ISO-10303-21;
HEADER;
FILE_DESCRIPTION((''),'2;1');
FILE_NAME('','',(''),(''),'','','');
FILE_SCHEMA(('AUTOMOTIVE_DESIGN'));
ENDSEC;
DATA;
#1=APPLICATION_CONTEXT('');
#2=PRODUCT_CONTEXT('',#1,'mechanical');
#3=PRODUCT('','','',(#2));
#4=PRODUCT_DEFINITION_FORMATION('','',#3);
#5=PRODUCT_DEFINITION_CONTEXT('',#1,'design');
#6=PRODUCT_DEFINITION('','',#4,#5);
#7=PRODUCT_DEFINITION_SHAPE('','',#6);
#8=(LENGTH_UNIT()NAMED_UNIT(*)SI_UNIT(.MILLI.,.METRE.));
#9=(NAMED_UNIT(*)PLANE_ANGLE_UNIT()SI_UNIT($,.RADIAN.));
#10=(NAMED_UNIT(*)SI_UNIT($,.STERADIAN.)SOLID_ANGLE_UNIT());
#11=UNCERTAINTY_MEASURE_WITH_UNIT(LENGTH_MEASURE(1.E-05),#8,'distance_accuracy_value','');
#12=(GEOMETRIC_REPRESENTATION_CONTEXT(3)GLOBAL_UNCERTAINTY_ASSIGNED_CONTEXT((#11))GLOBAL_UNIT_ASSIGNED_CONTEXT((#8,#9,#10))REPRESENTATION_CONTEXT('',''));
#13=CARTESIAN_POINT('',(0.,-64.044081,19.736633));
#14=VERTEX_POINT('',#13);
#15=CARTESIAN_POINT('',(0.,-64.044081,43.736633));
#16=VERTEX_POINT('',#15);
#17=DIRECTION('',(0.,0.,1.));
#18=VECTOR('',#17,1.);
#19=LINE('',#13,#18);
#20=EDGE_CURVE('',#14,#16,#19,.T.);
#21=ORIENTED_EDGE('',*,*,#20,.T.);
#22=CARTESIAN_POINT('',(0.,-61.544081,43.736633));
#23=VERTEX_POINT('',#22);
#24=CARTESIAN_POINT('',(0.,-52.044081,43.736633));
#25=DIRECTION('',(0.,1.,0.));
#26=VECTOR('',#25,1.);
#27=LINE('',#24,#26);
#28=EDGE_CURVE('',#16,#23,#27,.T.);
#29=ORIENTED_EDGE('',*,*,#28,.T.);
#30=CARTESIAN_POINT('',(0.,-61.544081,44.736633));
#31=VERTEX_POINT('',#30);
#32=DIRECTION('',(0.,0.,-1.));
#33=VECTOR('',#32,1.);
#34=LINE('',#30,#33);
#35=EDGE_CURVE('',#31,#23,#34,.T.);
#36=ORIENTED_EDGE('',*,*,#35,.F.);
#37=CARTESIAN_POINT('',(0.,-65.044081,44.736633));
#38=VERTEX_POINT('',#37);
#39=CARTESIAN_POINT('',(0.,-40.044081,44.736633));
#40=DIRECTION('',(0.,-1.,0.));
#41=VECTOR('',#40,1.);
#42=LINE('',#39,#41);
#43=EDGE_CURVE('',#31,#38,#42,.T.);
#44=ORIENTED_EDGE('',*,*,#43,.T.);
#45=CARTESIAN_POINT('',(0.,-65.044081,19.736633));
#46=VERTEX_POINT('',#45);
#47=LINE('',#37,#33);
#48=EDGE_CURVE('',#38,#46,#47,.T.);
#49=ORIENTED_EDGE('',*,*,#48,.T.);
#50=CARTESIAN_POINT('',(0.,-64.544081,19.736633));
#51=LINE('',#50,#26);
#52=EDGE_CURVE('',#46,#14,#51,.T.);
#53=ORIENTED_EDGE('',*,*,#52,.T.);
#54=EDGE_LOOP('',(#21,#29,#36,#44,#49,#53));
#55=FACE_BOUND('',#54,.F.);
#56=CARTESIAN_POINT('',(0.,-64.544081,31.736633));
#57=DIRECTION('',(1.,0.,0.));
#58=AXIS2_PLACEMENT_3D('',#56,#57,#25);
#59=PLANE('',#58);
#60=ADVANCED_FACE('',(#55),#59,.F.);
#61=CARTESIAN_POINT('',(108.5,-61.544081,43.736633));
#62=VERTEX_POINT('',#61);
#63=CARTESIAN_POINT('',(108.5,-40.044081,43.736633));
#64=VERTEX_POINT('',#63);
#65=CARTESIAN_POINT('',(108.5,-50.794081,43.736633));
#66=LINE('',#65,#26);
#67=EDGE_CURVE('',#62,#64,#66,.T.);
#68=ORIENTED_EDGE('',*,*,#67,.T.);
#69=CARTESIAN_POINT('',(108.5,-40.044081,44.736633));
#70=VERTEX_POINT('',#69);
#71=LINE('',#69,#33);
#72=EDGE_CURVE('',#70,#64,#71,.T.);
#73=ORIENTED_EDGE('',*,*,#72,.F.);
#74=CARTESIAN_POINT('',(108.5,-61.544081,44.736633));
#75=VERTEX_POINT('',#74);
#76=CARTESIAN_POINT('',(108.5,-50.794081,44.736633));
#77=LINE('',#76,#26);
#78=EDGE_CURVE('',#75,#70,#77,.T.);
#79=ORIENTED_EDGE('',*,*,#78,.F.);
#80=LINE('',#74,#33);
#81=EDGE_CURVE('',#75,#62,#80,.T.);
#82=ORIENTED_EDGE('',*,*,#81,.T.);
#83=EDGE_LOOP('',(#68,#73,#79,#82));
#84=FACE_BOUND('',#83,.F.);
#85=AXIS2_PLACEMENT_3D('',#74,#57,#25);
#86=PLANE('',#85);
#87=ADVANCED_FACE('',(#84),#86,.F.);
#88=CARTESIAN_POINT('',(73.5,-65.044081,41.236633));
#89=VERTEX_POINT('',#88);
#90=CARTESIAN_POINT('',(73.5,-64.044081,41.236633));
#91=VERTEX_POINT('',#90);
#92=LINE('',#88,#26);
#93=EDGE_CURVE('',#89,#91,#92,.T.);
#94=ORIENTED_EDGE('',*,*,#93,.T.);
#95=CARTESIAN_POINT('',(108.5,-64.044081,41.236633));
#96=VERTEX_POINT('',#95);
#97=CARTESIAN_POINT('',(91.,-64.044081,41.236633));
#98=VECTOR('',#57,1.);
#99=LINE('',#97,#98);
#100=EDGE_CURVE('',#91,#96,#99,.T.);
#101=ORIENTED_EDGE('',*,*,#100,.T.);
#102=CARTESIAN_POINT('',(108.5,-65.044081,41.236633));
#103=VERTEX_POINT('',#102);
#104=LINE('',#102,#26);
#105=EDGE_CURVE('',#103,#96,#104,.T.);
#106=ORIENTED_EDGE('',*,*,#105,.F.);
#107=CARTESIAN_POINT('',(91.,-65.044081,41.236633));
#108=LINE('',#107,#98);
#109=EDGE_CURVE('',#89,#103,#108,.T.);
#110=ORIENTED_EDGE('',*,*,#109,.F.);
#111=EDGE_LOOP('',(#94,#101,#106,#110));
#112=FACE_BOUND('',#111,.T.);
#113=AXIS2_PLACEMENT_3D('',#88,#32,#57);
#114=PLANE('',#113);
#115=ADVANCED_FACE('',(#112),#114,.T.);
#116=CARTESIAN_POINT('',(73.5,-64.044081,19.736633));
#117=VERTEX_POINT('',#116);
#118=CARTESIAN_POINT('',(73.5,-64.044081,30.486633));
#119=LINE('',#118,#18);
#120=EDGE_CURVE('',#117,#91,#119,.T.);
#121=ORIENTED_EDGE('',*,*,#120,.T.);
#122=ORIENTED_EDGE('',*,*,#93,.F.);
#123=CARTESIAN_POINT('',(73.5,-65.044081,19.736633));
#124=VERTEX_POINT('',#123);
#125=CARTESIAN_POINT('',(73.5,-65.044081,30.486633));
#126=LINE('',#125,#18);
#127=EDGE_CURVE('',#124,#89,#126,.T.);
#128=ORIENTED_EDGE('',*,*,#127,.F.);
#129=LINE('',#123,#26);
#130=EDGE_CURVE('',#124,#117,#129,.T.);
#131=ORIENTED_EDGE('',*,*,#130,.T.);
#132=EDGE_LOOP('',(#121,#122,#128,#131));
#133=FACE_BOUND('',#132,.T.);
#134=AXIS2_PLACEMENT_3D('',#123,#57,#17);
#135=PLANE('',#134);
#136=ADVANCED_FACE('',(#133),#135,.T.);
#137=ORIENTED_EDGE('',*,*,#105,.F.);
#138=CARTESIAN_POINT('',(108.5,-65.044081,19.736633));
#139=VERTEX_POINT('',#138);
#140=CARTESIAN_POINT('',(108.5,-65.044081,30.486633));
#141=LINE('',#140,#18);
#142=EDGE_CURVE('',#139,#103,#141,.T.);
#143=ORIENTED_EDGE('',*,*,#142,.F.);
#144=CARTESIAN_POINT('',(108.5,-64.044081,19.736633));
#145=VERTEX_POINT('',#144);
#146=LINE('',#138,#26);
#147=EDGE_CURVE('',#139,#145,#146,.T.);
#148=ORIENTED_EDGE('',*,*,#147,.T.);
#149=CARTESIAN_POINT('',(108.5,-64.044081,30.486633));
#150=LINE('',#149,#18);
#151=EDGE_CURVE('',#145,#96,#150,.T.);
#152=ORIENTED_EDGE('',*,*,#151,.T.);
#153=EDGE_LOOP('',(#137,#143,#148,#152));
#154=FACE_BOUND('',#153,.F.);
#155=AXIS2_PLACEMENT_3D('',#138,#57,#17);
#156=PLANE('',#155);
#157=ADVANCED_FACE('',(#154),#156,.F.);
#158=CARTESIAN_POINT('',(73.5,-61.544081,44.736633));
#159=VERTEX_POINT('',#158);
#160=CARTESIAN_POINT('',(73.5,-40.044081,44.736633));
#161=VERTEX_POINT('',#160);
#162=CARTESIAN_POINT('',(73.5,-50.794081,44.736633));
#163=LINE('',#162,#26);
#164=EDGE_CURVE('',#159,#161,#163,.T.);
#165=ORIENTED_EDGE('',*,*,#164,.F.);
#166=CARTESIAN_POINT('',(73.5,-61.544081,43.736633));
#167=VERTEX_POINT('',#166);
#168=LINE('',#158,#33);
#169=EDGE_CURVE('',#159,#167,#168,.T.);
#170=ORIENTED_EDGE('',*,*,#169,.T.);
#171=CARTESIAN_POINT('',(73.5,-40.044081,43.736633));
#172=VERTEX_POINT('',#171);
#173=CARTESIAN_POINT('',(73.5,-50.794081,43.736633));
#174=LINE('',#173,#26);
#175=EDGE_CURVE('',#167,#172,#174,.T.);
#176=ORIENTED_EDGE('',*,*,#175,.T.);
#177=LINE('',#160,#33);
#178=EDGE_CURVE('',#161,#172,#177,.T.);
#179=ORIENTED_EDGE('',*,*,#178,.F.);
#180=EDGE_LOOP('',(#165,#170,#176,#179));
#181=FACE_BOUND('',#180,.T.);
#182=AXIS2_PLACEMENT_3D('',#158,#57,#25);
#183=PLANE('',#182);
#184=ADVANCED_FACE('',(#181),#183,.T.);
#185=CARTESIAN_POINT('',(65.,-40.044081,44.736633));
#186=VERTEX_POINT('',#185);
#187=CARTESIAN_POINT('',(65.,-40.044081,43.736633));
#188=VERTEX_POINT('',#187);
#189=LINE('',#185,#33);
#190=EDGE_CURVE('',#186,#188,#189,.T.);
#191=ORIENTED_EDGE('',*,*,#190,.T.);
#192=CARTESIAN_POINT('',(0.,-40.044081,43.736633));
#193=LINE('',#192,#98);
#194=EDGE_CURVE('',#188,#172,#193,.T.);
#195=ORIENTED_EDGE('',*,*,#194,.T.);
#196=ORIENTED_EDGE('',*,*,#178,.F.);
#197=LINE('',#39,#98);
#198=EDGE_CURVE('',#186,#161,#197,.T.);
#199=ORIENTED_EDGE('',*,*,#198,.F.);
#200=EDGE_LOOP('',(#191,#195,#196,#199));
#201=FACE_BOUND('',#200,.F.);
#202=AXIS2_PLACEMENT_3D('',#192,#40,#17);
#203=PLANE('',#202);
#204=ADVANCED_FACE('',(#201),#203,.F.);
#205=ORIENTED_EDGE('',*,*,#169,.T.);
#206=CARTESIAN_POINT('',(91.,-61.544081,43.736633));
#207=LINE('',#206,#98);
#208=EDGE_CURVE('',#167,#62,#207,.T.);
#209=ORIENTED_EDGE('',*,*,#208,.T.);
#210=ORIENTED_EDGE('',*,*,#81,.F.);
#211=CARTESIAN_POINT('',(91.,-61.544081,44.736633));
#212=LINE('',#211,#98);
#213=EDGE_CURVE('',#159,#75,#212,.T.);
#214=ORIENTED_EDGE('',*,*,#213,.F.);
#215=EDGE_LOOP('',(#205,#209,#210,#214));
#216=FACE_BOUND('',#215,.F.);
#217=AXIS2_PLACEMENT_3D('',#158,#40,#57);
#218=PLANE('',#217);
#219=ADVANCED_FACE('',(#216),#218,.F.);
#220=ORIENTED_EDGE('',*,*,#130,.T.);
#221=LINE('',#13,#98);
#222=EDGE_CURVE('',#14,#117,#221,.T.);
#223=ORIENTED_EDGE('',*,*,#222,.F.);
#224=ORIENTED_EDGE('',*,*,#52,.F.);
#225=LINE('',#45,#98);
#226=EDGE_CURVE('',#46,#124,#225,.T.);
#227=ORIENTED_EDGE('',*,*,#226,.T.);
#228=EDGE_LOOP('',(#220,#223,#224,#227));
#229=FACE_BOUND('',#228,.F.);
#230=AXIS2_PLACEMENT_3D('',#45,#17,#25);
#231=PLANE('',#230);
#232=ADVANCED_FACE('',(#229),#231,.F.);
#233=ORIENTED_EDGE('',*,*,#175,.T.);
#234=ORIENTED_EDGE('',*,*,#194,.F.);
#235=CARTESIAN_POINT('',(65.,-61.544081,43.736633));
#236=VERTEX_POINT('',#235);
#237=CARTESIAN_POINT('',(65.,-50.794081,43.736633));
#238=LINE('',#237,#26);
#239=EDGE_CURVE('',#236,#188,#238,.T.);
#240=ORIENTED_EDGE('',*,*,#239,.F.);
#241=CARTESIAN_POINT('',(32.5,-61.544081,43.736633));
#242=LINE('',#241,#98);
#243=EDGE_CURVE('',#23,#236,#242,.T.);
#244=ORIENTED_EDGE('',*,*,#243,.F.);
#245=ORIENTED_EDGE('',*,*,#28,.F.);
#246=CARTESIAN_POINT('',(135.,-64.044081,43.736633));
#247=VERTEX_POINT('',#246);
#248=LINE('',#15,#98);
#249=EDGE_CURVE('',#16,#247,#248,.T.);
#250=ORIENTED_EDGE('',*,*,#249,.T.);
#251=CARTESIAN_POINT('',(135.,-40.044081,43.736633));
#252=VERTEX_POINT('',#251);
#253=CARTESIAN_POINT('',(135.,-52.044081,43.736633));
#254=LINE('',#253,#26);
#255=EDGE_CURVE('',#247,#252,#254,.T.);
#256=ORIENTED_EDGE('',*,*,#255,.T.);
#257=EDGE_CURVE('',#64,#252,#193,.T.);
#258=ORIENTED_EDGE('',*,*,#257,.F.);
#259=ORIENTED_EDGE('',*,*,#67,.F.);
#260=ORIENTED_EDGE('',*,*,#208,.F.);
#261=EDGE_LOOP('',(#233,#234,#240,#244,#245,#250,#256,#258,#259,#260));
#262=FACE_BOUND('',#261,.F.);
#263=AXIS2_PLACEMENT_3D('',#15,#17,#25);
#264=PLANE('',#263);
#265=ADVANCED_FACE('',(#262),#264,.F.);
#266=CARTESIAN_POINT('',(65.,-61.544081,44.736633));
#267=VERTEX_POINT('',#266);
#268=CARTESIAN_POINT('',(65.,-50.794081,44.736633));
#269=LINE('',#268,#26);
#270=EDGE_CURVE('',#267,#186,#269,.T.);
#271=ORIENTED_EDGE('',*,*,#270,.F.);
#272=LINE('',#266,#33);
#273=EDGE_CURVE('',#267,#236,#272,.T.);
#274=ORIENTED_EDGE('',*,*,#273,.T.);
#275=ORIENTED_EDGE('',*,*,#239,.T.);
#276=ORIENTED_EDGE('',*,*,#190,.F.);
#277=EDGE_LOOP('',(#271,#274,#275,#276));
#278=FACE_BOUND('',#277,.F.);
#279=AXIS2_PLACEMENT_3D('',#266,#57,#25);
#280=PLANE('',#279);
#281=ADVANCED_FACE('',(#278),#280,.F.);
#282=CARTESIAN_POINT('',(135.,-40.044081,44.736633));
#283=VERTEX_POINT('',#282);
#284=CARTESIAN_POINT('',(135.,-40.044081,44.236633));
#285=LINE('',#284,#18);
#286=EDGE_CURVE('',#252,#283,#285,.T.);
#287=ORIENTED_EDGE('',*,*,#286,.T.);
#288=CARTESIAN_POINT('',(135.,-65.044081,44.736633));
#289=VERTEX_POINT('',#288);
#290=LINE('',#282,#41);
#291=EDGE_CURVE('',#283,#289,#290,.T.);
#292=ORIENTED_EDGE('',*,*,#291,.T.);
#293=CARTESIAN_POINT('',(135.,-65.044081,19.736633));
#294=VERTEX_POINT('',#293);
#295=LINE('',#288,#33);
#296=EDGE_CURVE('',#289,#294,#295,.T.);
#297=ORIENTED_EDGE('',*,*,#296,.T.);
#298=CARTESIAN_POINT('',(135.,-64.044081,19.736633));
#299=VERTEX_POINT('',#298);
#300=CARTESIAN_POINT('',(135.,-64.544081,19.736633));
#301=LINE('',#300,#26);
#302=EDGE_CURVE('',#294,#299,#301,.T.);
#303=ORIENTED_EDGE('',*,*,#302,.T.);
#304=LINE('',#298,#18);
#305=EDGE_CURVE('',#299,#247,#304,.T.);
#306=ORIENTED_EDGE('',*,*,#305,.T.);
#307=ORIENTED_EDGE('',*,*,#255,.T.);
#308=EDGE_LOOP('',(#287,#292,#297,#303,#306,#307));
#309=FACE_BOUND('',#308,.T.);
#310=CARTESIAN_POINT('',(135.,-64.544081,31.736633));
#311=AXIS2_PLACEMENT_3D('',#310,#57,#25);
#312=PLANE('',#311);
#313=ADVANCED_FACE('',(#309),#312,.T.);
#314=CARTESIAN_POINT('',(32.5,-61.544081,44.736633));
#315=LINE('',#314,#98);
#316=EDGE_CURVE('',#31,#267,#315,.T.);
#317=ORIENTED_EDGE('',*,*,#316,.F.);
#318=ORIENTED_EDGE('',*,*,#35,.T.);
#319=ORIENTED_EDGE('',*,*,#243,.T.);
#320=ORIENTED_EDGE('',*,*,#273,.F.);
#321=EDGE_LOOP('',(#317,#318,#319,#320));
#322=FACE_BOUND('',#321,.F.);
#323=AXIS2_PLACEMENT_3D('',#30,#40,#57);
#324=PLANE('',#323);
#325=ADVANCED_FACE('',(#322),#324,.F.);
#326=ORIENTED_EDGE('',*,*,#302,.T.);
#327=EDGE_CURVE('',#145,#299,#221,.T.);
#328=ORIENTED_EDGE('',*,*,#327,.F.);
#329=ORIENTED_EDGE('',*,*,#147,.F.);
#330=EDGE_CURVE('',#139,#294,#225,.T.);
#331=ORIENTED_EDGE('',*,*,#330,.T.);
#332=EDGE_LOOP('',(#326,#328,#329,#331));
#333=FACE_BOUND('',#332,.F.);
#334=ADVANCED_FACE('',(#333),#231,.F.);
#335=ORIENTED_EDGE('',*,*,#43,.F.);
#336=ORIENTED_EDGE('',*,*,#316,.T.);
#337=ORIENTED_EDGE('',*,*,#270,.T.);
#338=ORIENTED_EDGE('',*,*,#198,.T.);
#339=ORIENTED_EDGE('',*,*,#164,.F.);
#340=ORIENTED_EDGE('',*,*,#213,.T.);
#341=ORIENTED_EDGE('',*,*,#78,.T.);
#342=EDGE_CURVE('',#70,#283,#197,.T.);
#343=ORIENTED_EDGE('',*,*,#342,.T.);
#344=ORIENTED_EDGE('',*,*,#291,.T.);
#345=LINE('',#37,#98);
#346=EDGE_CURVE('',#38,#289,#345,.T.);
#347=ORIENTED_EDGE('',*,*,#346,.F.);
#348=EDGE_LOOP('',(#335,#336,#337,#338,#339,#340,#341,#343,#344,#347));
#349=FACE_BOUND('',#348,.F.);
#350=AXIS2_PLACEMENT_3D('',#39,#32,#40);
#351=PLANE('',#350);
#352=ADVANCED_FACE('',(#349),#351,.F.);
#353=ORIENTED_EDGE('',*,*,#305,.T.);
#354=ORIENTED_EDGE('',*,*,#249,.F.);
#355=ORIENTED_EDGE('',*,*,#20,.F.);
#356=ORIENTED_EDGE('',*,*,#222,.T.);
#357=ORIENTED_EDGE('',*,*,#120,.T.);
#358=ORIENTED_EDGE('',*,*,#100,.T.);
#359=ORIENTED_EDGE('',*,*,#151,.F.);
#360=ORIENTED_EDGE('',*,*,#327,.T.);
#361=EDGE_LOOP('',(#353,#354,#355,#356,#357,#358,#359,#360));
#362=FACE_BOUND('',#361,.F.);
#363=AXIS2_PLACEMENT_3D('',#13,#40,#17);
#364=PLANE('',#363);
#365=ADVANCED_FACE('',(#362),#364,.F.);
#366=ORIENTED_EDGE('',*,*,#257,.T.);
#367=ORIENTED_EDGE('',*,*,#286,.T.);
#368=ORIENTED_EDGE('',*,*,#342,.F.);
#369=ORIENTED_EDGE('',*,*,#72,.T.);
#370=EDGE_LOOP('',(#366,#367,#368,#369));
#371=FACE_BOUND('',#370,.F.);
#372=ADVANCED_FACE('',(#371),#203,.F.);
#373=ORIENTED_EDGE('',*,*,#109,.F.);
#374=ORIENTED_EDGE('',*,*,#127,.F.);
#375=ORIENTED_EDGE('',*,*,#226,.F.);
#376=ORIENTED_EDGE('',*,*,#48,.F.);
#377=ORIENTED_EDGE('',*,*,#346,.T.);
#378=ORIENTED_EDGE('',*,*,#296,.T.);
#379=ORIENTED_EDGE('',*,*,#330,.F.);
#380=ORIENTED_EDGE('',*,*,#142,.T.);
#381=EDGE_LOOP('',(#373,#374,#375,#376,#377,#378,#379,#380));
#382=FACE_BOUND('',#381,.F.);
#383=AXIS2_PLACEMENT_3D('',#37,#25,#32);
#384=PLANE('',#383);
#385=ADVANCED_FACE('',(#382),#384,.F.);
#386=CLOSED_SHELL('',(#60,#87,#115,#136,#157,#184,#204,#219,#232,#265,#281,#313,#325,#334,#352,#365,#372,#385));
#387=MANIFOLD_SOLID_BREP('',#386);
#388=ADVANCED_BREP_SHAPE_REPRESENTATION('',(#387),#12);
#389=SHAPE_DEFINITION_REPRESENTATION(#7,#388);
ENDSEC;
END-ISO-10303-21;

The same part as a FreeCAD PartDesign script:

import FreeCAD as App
import Part
import Sketcher
Q = App.Units.Quantity

doc = App.newDocument("Part")
params = doc.addObject("Spreadsheet::Sheet", "Params")
for row, (alias, value) in enumerate([
    ("sketch1_width", "1 mm"),
    ("sketch1_width2", "24 mm"),
    ("pad1_length", "135 mm"),
    ("sketch2_width", "65 mm"),
    ("sketch2_width2", "35 mm"),
    ("sketch2_height", "21.5 mm"),
    ("pocket1_length", "1 mm"),
    ("sketch3_width", "35 mm"),
    ("sketch3_height", "21.5 mm"),
    ("pocket2_length", "1 mm"),
], start=1):
    params.set(f"A{row}", alias)
    params.set(f"B{row}", "=" + value)
    params.setAlias(f"B{row}", alias)

body = doc.addObject("PartDesign::Body", "Body")

# Sketch on YZ plane
sketch1 = doc.addObject("Sketcher::SketchObject", "Sketch")
body.addObject(sketch1)
sketch1.AttachmentSupport = (doc.YZ_Plane, [""])
sketch1.MapMode = "FlatFace"
sketch1.addGeometry([
    Part.LineSegment(App.Vector(-65, 19.7, 0), App.Vector(-64, 19.7, 0)),  # 0
    Part.LineSegment(App.Vector(-64, 19.7, 0), App.Vector(-64, 43.7, 0)),  # 1
    Part.LineSegment(App.Vector(-64, 43.7, 0), App.Vector(-40, 43.7, 0)),  # 2
    Part.LineSegment(App.Vector(-40, 43.7, 0), App.Vector(-40, 44.7, 0)),  # 3
    Part.LineSegment(App.Vector(-40, 44.7, 0), App.Vector(-65, 44.7, 0)),  # 4
    Part.LineSegment(App.Vector(-65, 44.7, 0), App.Vector(-65, 19.7, 0)),  # 5
], False)
sketch1.addConstraint([
    Sketcher.Constraint("Coincident", 0, 2, 1, 1),
    Sketcher.Constraint("Coincident", 1, 2, 2, 1),
    Sketcher.Constraint("Coincident", 2, 2, 3, 1),
    Sketcher.Constraint("Coincident", 3, 2, 4, 1),
    Sketcher.Constraint("Coincident", 4, 2, 5, 1),
    Sketcher.Constraint("Coincident", 5, 2, 0, 1),
    Sketcher.Constraint("Horizontal", 0),
    Sketcher.Constraint("Vertical", 1),
    Sketcher.Constraint("Horizontal", 2),
    Sketcher.Constraint("Vertical", 3),
    Sketcher.Constraint("Horizontal", 4),
    Sketcher.Constraint("Vertical", 5),
    Sketcher.Constraint("Equal", 2, 1),
    Sketcher.Constraint("Equal", 0, 3),
    Sketcher.Constraint("DistanceX", 0, 1, 0, 2, Q("1 mm")),
    Sketcher.Constraint("DistanceX", 2, 1, 2, 2, Q("24 mm")),
    Sketcher.Constraint("DistanceX", 0, 2, -1, 1, Q("64.044081 mm")),
    Sketcher.Constraint("DistanceY", -1, 1, 0, 2, Q("19.736633 mm")),
])
sketch1.setExpression("Constraints[14]", "Params.sketch1_width")
sketch1.setExpression("Constraints[15]", "Params.sketch1_width2")
pad1 = doc.addObject("PartDesign::Pad", "Pad")
body.addObject(pad1)
pad1.Profile = sketch1
pad1.setExpression("Length", "Params.pad1_length")

# Sketch on XY plane
sketch2 = doc.addObject("Sketcher::SketchObject", "Sketch001")
body.addObject(sketch2)
sketch2.AttachmentSupport = (doc.XY_Plane, [""])
sketch2.MapMode = "FlatFace"
sketch2.AttachmentOffset = App.Placement(App.Vector(0, 0, 44.736633), App.Rotation())
sketch2.addGeometry([
    Part.LineSegment(App.Vector(0, -40, 0), App.Vector(0, -62, 0)),  # 0
    Part.LineSegment(App.Vector(0, -62, 0), App.Vector(65, -62, 0)),  # 1
    Part.LineSegment(App.Vector(65, -62, 0), App.Vector(65, -40, 0)),  # 2
    Part.LineSegment(App.Vector(65, -40, 0), App.Vector(0, -40, 0)),  # 3
    Part.LineSegment(App.Vector(74, -40, 0), App.Vector(74, -62, 0)),  # 4
    Part.LineSegment(App.Vector(74, -62, 0), App.Vector(108, -62, 0)),  # 5
    Part.LineSegment(App.Vector(108, -62, 0), App.Vector(108, -40, 0)),  # 6
    Part.LineSegment(App.Vector(108, -40, 0), App.Vector(74, -40, 0)),  # 7
], False)
sketch2.addConstraint([
    Sketcher.Constraint("Coincident", 0, 2, 1, 1),
    Sketcher.Constraint("Coincident", 1, 2, 2, 1),
    Sketcher.Constraint("Coincident", 2, 2, 3, 1),
    Sketcher.Constraint("Coincident", 3, 2, 0, 1),
    Sketcher.Constraint("Coincident", 4, 2, 5, 1),
    Sketcher.Constraint("Coincident", 5, 2, 6, 1),
    Sketcher.Constraint("Coincident", 6, 2, 7, 1),
    Sketcher.Constraint("Coincident", 7, 2, 4, 1),
    Sketcher.Constraint("Vertical", 0),
    Sketcher.Constraint("Horizontal", 1),
    Sketcher.Constraint("Vertical", 2),
    Sketcher.Constraint("Horizontal", 3),
    Sketcher.Constraint("Vertical", 4),
    Sketcher.Constraint("Horizontal", 5),
    Sketcher.Constraint("Vertical", 6),
    Sketcher.Constraint("Horizontal", 7),
    Sketcher.Constraint("PointOnObject", 0, 2, -2),
    Sketcher.Constraint("Horizontal", 1, 2, 4, 2),
    Sketcher.Constraint("Horizontal", 3, 2, 6, 2),
    Sketcher.Constraint("DistanceX", 1, 1, 1, 2, Q("65 mm")),
    Sketcher.Constraint("DistanceX", 5, 1, 5, 2, Q("35 mm")),
    Sketcher.Constraint("DistanceY", 0, 2, 0, 1, Q("21.5 mm")),
    Sketcher.Constraint("DistanceX", -1, 1, 4, 2, Q("73.5 mm")),
    Sketcher.Constraint("DistanceY", 0, 2, -1, 1, Q("61.544081 mm")),
])
sketch2.setExpression("Constraints[19]", "Params.sketch2_width")
sketch2.setExpression("Constraints[20]", "Params.sketch2_width2")
sketch2.setExpression("Constraints[21]", "Params.sketch2_height")
pocket1 = doc.addObject("PartDesign::Pocket", "Pocket")
body.addObject(pocket1)
pocket1.Profile = sketch2
pocket1.setExpression("Length", "Params.pocket1_length")

# Sketch on XZ plane
sketch3 = doc.addObject("Sketcher::SketchObject", "Sketch002")
body.addObject(sketch3)
sketch3.AttachmentSupport = (doc.XZ_Plane, [""])
sketch3.MapMode = "FlatFace"
sketch3.AttachmentOffset = App.Placement(App.Vector(0, 0, 65.044081), App.Rotation())
sketch3.addGeometry([
    Part.LineSegment(App.Vector(74, 41, 0), App.Vector(74, 20, 0)),
    Part.LineSegment(App.Vector(74, 20, 0), App.Vector(108, 20, 0)),
    Part.LineSegment(App.Vector(108, 20, 0), App.Vector(108, 41, 0)),
    Part.LineSegment(App.Vector(108, 41, 0), App.Vector(74, 41, 0)),
], False)
sketch3.addConstraint([
    Sketcher.Constraint("Coincident", 0, 2, 1, 1),
    Sketcher.Constraint("Coincident", 1, 2, 2, 1),
    Sketcher.Constraint("Coincident", 2, 2, 3, 1),
    Sketcher.Constraint("Coincident", 3, 2, 0, 1),
    Sketcher.Constraint("Vertical", 0),
    Sketcher.Constraint("Horizontal", 1),
    Sketcher.Constraint("Vertical", 2),
    Sketcher.Constraint("Horizontal", 3),
    Sketcher.Constraint("DistanceX", 1, 1, 1, 2, Q("35 mm")),
    Sketcher.Constraint("DistanceY", 0, 2, 0, 1, Q("21.5 mm")),
    Sketcher.Constraint("DistanceX", -1, 1, 0, 2, Q("73.5 mm")),
    Sketcher.Constraint("DistanceY", -1, 1, 0, 2, Q("19.736633 mm")),
])
sketch3.setExpression("Constraints[8]", "Params.sketch3_width")
sketch3.setExpression("Constraints[9]", "Params.sketch3_height")
pocket2 = doc.addObject("PartDesign::Pocket", "Pocket001")
body.addObject(pocket2)
pocket2.Profile = sketch3
pocket2.setExpression("Length", "Params.pocket2_length")

doc.recompute()
